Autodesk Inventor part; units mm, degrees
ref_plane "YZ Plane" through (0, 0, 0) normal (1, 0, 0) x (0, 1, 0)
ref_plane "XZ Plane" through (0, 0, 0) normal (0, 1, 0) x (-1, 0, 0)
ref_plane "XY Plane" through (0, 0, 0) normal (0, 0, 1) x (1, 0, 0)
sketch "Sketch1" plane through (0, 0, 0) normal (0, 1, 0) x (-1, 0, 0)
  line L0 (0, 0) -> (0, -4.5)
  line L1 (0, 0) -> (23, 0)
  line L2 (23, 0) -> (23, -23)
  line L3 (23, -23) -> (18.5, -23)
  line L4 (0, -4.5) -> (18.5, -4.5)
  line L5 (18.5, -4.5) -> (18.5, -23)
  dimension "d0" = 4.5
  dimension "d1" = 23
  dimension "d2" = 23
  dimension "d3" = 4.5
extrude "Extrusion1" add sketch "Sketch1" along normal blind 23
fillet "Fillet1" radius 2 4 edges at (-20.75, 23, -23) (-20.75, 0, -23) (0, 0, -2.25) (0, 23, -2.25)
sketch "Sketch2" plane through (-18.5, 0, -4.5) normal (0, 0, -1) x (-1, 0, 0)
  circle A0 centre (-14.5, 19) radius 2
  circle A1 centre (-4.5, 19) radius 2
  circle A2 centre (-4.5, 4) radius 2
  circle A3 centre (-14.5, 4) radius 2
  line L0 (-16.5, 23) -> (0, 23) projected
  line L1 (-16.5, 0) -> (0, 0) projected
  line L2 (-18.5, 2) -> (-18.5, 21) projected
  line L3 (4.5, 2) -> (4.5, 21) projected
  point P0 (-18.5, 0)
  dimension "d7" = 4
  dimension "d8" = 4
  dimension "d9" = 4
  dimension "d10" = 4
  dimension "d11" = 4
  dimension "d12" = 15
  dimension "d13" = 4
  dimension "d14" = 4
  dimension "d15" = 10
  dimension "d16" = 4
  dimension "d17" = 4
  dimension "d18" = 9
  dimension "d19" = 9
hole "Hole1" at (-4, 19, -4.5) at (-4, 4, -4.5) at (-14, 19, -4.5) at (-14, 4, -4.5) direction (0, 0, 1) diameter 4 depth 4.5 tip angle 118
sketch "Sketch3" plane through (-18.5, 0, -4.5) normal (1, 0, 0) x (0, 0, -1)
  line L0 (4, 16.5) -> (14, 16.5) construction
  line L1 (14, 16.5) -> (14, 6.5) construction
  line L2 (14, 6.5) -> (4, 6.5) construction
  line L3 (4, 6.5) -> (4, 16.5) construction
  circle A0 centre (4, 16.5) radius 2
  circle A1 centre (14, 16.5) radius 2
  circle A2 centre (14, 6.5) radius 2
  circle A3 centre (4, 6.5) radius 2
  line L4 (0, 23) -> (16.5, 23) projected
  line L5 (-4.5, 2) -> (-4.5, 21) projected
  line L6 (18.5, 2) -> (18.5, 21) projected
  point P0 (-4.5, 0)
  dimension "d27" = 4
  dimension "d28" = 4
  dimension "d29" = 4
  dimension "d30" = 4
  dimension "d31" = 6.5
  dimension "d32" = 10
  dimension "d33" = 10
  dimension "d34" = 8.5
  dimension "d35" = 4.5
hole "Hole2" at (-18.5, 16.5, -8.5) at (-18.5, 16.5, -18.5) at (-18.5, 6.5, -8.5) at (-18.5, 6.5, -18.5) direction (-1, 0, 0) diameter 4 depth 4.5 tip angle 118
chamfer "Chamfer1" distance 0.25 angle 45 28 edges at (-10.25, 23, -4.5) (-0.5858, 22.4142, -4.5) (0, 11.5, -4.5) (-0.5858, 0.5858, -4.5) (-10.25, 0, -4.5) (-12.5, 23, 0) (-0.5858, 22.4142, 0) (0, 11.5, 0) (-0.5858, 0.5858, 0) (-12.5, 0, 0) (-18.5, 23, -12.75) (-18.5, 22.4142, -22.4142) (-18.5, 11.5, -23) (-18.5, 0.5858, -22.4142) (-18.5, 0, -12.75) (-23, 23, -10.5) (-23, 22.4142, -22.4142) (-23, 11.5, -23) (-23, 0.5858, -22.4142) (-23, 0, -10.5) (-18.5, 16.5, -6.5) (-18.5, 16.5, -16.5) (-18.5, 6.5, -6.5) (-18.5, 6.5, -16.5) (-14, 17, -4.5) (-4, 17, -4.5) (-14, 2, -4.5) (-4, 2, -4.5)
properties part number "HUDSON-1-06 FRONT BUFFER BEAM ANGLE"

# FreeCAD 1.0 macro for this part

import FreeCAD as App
import Part
import Sketcher

V = App.Vector
Q = App.Units.Quantity


def edges_at(feature, points):
    """Names of the edges that pass closest to the given points."""
    edges = feature.Shape.Edges
    near = lambda p: min(range(len(edges)), key=lambda i: edges[i].distToShape(Part.Vertex(*p))[0])
    return sorted({f"Edge{near(p) + 1}" for p in points})

doc = App.newDocument("Part")
params = doc.addObject("Spreadsheet::Sheet", "Params")
for row, (alias, value) in enumerate([
    ("sketch1_width", "23 mm"),
    ("sketch1_width2", "4.5 mm"),
    ("pad1_length", "23 mm"),
    ("fillet_radius", "2 mm"),
    ("sketch2_diameter", "4 mm"),
    ("hole_diameter", "4 mm"),
    ("hole_depth", "4.5 mm"),
    ("sketch3_diameter", "4 mm"),
    ("hole2_diameter", "4 mm"),
    ("hole2_depth", "4.5 mm"),
    ("chamfer_size", "0.25 mm"),
], start=1):
    params.set(f"A{row}", alias)
    params.set(f"B{row}", "=" + value)
    params.setAlias(f"B{row}", alias)

body = doc.addObject("PartDesign::Body", "Body")

# Sketch on XZ plane
sketch1 = doc.addObject("Sketcher::SketchObject", "Sketch")
body.addObject(sketch1)
sketch1.AttachmentSupport = (doc.XZ_Plane, [""])
sketch1.MapMode = "FlatFace"
sketch1.addGeometry([
    Part.LineSegment(V(-23, 0, 0), V(0, 0, 0)),  # 0
    Part.LineSegment(V(0, 0, 0), V(0, -4.5, 0)),  # 1
    Part.LineSegment(V(0, -4.5, 0), V(-18.5, -4.5, 0)),  # 2
    Part.LineSegment(V(-18.5, -4.5, 0), V(-18.5, -23, 0)),  # 3
    Part.LineSegment(V(-18.5, -23, 0), V(-23, -23, 0)),  # 4
    Part.LineSegment(V(-23, -23, 0), V(-23, 0, 0)),  # 5
], False)
sketch1.addConstraint([
    Sketcher.Constraint("Coincident", 0, 2, 1, 1),
    Sketcher.Constraint("Coincident", 1, 2, 2, 1),
    Sketcher.Constraint("Coincident", 2, 2, 3, 1),
    Sketcher.Constraint("Coincident", 3, 2, 4, 1),
    Sketcher.Constraint("Coincident", 4, 2, 5, 1),
    Sketcher.Constraint("Coincident", 5, 2, 0, 1),
    Sketcher.Constraint("Horizontal", 0),
    Sketcher.Constraint("Vertical", 1),
    Sketcher.Constraint("Horizontal", 2),
    Sketcher.Constraint("Vertical", 3),
    Sketcher.Constraint("Horizontal", 4),
    Sketcher.Constraint("Vertical", 5),
    Sketcher.Constraint("Coincident", 0, 2, -1, 1),
    Sketcher.Constraint("Equal", 4, 1),
    Sketcher.Constraint("Equal", 2, 3),
    Sketcher.Constraint("DistanceX", 0, 1, 0, 2, Q("23 mm")),
    Sketcher.Constraint("DistanceX", 4, 2, 4, 1, Q("4.5 mm")),
])
sketch1.setExpression("Constraints[15]", "Params.sketch1_width")
sketch1.setExpression("Constraints[16]", "Params.sketch1_width2")
pad1 = doc.addObject("PartDesign::Pad", "Pad")
body.addObject(pad1)
pad1.Profile = sketch1
pad1.setExpression("Length", "Params.pad1_length")
pad1.Reversed = True
doc.recompute()

fillet = doc.addObject("PartDesign::Fillet", "Fillet")
body.addObject(fillet)
fillet.Base = (pad1, edges_at(pad1, [
    (-20.75, 23, -23),
    (-20.75, 0, -23),
    (0, 0, -2.25),
    (0, 23, -2.25),
]))
fillet.setExpression("Radius", "Params.fillet_radius")

# Sketch on XY plane
sketch2 = doc.addObject("Sketcher::SketchObject", "Sketch001")
body.addObject(sketch2)
sketch2.AttachmentSupport = (doc.XY_Plane, [""])
sketch2.MapMode = "FlatFace"
sketch2.AttachmentOffset = App.Placement(V(0, 0, -4.5), App.Rotation())
sketch2.addGeometry([
    Part.Circle(V(-4, 19, 0), V(0, 0, 1), 2),
    Part.Circle(V(-4, 4, 0), V(0, 0, 1), 2),
    Part.Circle(V(-14, 19, 0), V(0, 0, 1), 2),
    Part.Circle(V(-14, 4, 0), V(0, 0, 1), 2),
], False)
sketch2.addConstraint([
    Sketcher.Constraint("Equal", 0, 1),
    Sketcher.Constraint("Equal", 1, 2),
    Sketcher.Constraint("Equal", 2, 3),
    Sketcher.Constraint("Horizontal", 0, 3, 2, 3),
    Sketcher.Constraint("Horizontal", 1, 3, 3, 3),
    Sketcher.Constraint("Vertical", 0, 3, 1, 3),
    Sketcher.Constraint("Vertical", 2, 3, 3, 3),
    Sketcher.Constraint("Diameter", 0, Q("4 mm")),
    Sketcher.Constraint("DistanceX", 0, 3, -1, 1, Q("4 mm")),
    Sketcher.Constraint("DistanceY", -1, 1, 0, 3, Q("19 mm")),
    Sketcher.Constraint("DistanceY", -1, 1, 1, 3, Q("4 mm")),
    Sketcher.Constraint("DistanceX", 2, 3, -1, 1, Q("14 mm")),
])
sketch2.setExpression("Constraints[7]", "Params.sketch2_diameter")
doc.recompute()
hole = doc.addObject("PartDesign::Hole", "Hole")
body.addObject(hole)
hole.Profile = sketch2
hole.ThreadType = "None"
hole.setExpression("Diameter", "Params.hole_diameter")
hole.DepthType = "Dimension"
hole.setExpression("Depth", "Params.hole_depth")
hole.DrillPoint = "Angled"
hole.DrillPointAngle = 118
hole.Reversed = True

# Sketch on YZ plane
sketch3 = doc.addObject("Sketcher::SketchObject", "Sketch002")
body.addObject(sketch3)
sketch3.AttachmentSupport = (doc.YZ_Plane, [""])
sketch3.MapMode = "FlatFace"
sketch3.AttachmentOffset = App.Placement(V(0, 0, -18.5), App.Rotation())
sketch3.addGeometry([
    Part.Circle(V(16.5, -8.5, 0), V(0, 0, 1), 2),
    Part.Circle(V(16.5, -18.5, 0), V(0, 0, 1), 2),
    Part.Circle(V(6.5, -8.5, 0), V(0, 0, 1), 2),
    Part.Circle(V(6.5, -18.5, 0), V(0, 0, 1), 2),
], False)
sketch3.addConstraint([
    Sketcher.Constraint("Equal", 0, 1),
    Sketcher.Constraint("Equal", 1, 2),
    Sketcher.Constraint("Equal", 2, 3),
    Sketcher.Constraint("Horizontal", 0, 3, 2, 3),
    Sketcher.Constraint("Horizontal", 1, 3, 3, 3),
    Sketcher.Constraint("Vertical", 0, 3, 1, 3),
    Sketcher.Constraint("Vertical", 2, 3, 3, 3),
    Sketcher.Constraint("Diameter", 0, Q("4 mm")),
    Sketcher.Constraint("DistanceY", 1, 3, 0, 3, Q("10 mm")),
    Sketcher.Constraint("DistanceX", 2, 3, 0, 3, Q("10 mm")),
    Sketcher.Constraint("DistanceX", -1, 1, 0, 3, Q("16.5 mm")),
    Sketcher.Constraint("DistanceY", 0, 3, -1, 1, Q("8.5 mm")),
])
sketch3.setExpression("Constraints[7]", "Params.sketch3_diameter")
doc.recompute()
hole2 = doc.addObject("PartDesign::Hole", "Hole001")
body.addObject(hole2)
hole2.Profile = sketch3
hole2.ThreadType = "None"
hole2.setExpression("Diameter", "Params.hole2_diameter")
hole2.DepthType = "Dimension"
hole2.setExpression("Depth", "Params.hole2_depth")
hole2.DrillPoint = "Angled"
hole2.DrillPointAngle = 118
doc.recompute()

chamfer = doc.addObject("PartDesign::Chamfer", "Chamfer")
body.addObject(chamfer)
chamfer.Base = (hole2, edges_at(hole2, [
    (-10.25, 23, -4.5),
    (-0.586, 22.414, -4.5),
    (0, 11.5, -4.5),
    (-0.586, 0.586, -4.5),
    (-10.25, 0, -4.5),
    (-12.5, 23, 0),
    (-0.586, 22.414, 0),
    (0, 11.5, 0),
    (-0.586, 0.586, 0),
    (-12.5, 0, 0),
    (-18.5, 23, -12.75),
    (-18.5, 22.414, -22.414),
    (-18.5, 11.5, -23),
    (-18.5, 0.586, -22.414),
    (-18.5, 0, -12.75),
    (-23, 23, -10.5),
    (-23, 22.414, -22.414),
    (-23, 11.5, -23),
    (-23, 0.586, -22.414),
    (-23, 0, -10.5),
    (-18.5, 16.5, -6.5),
    (-18.5, 16.5, -16.5),
    (-18.5, 6.5, -6.5),
    (-18.5, 6.5, -16.5),
    (-14, 17, -4.5),
    (-4, 17, -4.5),
    (-14, 2, -4.5),
    (-4, 2, -4.5),
]))
chamfer.setExpression("Size", "Params.chamfer_size")

doc.recompute()
